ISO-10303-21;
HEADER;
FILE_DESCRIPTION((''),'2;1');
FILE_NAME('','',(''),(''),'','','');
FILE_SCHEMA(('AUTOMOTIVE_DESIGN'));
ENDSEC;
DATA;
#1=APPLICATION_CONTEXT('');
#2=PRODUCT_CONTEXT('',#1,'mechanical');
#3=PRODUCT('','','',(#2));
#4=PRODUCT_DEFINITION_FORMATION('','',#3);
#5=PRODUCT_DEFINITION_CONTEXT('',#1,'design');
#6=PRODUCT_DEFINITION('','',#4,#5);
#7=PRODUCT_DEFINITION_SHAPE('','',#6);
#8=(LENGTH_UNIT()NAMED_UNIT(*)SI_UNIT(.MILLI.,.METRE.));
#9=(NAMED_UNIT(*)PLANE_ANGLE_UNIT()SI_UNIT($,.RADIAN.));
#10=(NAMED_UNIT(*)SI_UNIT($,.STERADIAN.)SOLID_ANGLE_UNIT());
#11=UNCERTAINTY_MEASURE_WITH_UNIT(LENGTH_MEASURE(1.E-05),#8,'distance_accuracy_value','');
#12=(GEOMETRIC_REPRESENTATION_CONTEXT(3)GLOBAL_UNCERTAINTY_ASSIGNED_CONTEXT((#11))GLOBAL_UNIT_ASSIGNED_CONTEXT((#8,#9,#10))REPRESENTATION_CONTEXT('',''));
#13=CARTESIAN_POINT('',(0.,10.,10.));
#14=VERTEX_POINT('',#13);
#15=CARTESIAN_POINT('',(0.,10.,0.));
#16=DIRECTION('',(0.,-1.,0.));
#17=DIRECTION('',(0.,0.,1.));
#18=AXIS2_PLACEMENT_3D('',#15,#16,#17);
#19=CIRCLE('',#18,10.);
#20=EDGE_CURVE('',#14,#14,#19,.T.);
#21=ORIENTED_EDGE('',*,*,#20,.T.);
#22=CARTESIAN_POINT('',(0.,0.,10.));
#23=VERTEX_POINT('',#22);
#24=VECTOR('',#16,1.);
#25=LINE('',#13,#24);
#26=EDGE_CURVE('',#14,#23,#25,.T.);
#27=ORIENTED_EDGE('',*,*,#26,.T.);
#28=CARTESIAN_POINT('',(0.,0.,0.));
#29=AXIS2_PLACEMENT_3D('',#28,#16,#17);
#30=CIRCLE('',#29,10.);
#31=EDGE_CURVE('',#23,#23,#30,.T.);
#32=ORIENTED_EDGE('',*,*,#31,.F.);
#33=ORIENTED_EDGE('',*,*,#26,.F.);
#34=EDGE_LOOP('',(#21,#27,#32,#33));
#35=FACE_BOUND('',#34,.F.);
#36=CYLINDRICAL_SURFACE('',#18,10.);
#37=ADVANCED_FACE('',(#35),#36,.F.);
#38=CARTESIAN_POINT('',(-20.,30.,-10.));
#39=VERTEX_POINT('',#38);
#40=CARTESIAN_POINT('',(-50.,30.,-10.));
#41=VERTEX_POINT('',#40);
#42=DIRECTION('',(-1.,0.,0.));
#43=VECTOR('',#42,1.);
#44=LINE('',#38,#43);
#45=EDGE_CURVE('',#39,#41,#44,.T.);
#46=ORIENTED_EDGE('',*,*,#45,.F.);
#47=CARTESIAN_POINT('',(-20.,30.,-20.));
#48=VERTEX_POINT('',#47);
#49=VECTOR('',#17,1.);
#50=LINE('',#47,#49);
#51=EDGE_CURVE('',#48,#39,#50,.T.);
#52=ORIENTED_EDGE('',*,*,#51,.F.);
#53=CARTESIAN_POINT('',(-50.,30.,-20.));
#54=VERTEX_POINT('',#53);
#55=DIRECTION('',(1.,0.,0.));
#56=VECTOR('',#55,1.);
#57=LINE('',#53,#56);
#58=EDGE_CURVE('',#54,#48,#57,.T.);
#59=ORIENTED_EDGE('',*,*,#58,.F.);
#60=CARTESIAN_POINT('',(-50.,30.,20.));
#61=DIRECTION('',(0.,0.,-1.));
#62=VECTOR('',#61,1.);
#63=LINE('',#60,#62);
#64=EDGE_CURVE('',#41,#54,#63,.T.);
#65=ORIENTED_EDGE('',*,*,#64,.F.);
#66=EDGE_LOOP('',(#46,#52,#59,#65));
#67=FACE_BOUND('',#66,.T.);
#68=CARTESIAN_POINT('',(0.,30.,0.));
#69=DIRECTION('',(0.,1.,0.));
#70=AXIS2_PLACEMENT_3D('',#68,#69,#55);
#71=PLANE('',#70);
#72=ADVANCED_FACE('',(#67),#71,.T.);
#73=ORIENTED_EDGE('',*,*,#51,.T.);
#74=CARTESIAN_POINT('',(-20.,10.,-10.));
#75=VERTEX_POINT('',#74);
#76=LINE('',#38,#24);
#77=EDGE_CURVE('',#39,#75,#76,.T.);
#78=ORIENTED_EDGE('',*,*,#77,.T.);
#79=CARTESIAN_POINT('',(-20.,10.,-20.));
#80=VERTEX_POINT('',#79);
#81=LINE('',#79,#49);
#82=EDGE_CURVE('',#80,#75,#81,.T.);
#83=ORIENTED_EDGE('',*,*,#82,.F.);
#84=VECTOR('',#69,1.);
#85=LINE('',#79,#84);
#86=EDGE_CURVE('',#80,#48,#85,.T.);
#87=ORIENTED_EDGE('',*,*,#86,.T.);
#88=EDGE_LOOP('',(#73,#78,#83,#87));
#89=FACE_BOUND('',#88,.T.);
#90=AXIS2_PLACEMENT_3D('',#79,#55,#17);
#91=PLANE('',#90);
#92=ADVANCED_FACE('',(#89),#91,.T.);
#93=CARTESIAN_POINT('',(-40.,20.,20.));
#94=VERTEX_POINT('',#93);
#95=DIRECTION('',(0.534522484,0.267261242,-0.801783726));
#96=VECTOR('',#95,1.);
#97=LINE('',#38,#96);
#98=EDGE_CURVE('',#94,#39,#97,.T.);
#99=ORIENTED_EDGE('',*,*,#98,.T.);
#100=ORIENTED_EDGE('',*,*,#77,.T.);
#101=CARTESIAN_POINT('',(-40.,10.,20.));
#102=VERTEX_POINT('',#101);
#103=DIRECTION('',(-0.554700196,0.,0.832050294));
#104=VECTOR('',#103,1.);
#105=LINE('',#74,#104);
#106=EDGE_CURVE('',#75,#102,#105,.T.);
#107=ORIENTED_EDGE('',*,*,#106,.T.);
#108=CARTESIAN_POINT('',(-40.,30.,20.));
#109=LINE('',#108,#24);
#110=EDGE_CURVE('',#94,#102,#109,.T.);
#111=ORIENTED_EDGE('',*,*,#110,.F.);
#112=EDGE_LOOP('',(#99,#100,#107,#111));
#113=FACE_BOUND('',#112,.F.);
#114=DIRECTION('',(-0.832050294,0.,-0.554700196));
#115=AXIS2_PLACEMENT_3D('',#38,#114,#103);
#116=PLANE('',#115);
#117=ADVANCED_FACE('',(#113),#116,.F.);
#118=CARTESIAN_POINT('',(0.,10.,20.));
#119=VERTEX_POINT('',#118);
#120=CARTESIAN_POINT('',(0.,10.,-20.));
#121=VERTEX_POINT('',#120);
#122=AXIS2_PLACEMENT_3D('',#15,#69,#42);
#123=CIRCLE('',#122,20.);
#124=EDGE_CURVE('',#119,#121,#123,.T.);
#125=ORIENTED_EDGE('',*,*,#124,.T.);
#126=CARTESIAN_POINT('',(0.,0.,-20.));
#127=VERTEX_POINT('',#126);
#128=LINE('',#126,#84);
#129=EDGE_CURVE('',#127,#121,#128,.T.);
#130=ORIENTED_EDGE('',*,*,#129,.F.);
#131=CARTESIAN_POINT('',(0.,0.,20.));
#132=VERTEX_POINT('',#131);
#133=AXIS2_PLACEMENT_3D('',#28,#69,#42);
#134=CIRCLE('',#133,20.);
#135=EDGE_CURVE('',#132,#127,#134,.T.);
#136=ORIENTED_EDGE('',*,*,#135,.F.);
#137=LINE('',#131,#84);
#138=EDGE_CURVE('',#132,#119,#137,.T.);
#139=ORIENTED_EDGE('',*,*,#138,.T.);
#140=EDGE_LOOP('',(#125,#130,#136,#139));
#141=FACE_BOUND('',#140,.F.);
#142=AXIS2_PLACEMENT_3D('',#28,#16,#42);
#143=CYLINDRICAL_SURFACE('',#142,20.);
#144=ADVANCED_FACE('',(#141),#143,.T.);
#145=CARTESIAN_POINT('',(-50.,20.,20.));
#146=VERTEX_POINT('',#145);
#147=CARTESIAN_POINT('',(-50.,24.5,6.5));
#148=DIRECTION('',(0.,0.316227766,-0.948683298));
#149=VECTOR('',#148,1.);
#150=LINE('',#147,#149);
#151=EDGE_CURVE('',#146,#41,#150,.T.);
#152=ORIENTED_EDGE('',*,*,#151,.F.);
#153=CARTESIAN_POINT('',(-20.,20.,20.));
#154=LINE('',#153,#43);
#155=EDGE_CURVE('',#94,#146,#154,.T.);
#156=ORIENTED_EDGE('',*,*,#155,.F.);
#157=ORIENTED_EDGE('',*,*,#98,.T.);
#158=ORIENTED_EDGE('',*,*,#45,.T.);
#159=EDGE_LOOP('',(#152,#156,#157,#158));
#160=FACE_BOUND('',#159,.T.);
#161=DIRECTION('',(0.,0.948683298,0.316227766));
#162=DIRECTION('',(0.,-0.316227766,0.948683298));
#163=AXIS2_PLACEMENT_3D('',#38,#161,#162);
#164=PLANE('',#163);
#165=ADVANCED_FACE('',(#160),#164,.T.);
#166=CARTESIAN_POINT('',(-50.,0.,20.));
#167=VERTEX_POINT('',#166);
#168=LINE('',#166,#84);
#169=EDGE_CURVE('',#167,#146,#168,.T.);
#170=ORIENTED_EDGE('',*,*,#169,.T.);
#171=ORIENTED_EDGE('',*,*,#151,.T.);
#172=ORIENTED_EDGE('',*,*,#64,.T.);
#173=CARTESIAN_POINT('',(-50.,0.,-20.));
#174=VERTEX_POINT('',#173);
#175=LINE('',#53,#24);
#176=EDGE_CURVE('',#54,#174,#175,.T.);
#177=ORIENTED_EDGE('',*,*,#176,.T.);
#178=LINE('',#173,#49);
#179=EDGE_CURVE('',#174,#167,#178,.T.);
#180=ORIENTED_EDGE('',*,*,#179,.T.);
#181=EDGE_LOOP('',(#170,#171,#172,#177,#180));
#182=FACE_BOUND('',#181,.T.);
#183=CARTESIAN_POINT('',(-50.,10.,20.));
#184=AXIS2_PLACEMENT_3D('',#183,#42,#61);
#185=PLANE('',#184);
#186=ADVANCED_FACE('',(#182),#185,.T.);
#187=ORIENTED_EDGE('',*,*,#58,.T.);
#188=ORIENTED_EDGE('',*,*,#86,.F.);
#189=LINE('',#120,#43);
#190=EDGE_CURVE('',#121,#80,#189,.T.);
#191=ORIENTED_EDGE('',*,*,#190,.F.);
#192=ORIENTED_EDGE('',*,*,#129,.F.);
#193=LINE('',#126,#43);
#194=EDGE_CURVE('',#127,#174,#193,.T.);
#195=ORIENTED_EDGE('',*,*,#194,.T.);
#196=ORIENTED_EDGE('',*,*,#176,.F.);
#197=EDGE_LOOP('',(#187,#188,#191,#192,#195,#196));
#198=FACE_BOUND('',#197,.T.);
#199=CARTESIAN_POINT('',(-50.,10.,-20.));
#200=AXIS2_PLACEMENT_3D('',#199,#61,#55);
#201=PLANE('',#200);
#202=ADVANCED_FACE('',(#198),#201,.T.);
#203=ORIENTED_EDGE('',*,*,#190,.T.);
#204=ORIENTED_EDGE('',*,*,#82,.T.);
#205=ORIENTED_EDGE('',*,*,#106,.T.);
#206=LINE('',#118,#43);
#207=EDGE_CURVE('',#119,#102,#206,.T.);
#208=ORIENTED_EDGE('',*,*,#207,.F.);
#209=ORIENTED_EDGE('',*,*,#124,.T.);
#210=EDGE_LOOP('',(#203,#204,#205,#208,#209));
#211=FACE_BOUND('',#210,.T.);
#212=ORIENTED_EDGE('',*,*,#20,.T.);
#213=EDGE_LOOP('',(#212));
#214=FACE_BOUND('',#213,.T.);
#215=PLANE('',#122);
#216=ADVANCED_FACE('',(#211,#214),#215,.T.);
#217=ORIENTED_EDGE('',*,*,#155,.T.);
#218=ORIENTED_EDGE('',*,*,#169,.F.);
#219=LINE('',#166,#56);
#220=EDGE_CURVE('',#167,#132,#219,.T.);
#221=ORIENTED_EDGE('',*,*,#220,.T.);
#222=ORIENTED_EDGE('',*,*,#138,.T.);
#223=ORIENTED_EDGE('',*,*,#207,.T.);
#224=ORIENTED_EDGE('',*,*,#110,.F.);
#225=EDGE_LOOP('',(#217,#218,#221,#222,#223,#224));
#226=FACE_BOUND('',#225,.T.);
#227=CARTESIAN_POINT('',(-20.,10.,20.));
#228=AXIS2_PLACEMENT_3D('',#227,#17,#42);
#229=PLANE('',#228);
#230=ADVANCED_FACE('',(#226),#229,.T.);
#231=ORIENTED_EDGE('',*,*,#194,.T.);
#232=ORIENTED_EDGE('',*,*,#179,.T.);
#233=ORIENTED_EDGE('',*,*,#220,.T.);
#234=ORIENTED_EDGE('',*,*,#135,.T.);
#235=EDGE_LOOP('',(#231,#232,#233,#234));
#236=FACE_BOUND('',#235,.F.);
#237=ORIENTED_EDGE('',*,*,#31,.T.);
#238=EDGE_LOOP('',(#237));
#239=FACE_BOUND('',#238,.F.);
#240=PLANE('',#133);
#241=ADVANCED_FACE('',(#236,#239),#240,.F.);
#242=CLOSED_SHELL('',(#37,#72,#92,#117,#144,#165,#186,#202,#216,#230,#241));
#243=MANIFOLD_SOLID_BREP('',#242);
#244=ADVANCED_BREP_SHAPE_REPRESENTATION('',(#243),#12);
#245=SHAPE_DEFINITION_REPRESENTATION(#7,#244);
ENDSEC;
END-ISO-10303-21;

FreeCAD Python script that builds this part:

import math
import FreeCAD as App
import Part
import Sketcher
from FreeCAD import Vector
Q = App.Units.Quantity


def add_polygon(sketch, points):
    """Adds a closed chain of lines whose ends are joined by coincident constraints."""
    first, n = sketch.GeometryCount, len(points)
    for a, b in zip(points, points[1:] + points[:1]):
        sketch.addGeometry(Part.LineSegment(App.Vector(*a, 0), App.Vector(*b, 0)), False)
    for i in range(n):
        sketch.addConstraint(Sketcher.Constraint("Coincident", first + i, 2, first + (i + 1) % n, 1))

doc = App.newDocument("Part")
body = doc.addObject("PartDesign::Body", "Body")

# Sketch on XZ plane
sketch1 = body.newObject("Sketcher::SketchObject", "Sketch")
sketch1.AttachmentSupport = (doc.getObject("XZ_Plane"), [""])
sketch1.MapMode = "FlatFace"
sketch1.addGeometry([
    Part.LineSegment(Vector(0, -20, 0), Vector(-50, -20, 0)),
    Part.LineSegment(Vector(-50, -20, 0), Vector(-50, 20, 0)),
    Part.LineSegment(Vector(-50, 20, 0), Vector(0, 20, 0)),
    Part.ArcOfCircle(Part.Circle(Vector(0, 0, 0), Vector(0, 0, 1), 20), math.radians(-90), math.radians(90)),
], False)
sketch1.addConstraint([
    Sketcher.Constraint("Coincident", 0, 2, 1, 1),
    Sketcher.Constraint("Coincident", 1, 2, 2, 1),
    Sketcher.Constraint("Tangent", 2, 2, 3, 2),
    Sketcher.Constraint("Tangent", 3, 1, 0, 1),
    Sketcher.Constraint("Horizontal", 0),
    Sketcher.Constraint("Vertical", 1),
    Sketcher.Constraint("Horizontal", 2),
    Sketcher.Constraint("Coincident", 3, 3, -1, 1),
    Sketcher.Constraint("Radius", 3, Q("0.7874 in")),
    Sketcher.Constraint("DistanceX", 0, 2, 0, 1, Q("1.9685 in")),
])
pad1 = body.newObject("PartDesign::Pad", "Pad")
pad1.Profile = sketch1
pad1.Length = Q("0.3937008 in")
pad1.Reversed = True

# Sketch on XZ plane
sketch2 = body.newObject("Sketcher::SketchObject", "Sketch001")
sketch2.AttachmentSupport = (doc.getObject("XZ_Plane"), [""])
sketch2.MapMode = "FlatFace"
sketch2.AttachmentOffset = App.Placement(Vector(0, 0, -0.3937008 * 25.4), App.Rotation())
add_polygon(sketch2, [(-50, -20), (-50, 20), (-20, 20), (-20, -20)])  # lines 0-3
sketch2.addConstraint([
    Sketcher.Constraint("Vertical", 0),
    Sketcher.Constraint("Horizontal", 1),
    Sketcher.Constraint("Vertical", 2),
    Sketcher.Constraint("Horizontal", 3),
    Sketcher.Constraint("DistanceX", 1, 1, 1, 2, Q("1.1811 in")),
    Sketcher.Constraint("DistanceY", 0, 1, 0, 2, Q("1.5748 in")),
    Sketcher.Constraint("DistanceX", 0, 2, -1, 1, Q("1.9685 in")),
    Sketcher.Constraint("DistanceY", -1, 1, 0, 2, Q("0.7874 in")),
])
pad2 = body.newObject("PartDesign::Pad", "Pad001")
pad2.Profile = sketch2
pad2.Length = Q("0.7874016 in")
pad2.Reversed = True

# Sketch on XZ plane
sketch3 = body.newObject("Sketcher::SketchObject", "Sketch002")
sketch3.AttachmentSupport = (doc.getObject("XZ_Plane"), [""])
sketch3.MapMode = "FlatFace"
sketch3.AttachmentOffset = App.Placement(Vector(0, 0, -1.1811024 * 25.4), App.Rotation())
add_polygon(sketch3, [(-20, -10), (-40, 20), (-20, 20)])  # lines 0-2
sketch3.addConstraint([
    Sketcher.Constraint("Horizontal", 1),
    Sketcher.Constraint("Vertical", 2),
    Sketcher.Constraint("DistanceY", 2, 2, -1, 1, Q("0.3937 in")),
    Sketcher.Constraint("Angle", 0, Q("123.69 deg")),
    Sketcher.Constraint("DistanceX", 1, 1, 1, 2, Q("0.7874 in")),
    Sketcher.Constraint("DistanceX", 0, 2, -1, 1, Q("1.5748 in")),
])
pocket1 = body.newObject("PartDesign::Pocket", "Pocket")
pocket1.Profile = sketch3
pocket1.Length = Q("0.7874016 in")
pocket1.Reversed = True

# Sketch on YZ plane
sketch4 = body.newObject("Sketcher::SketchObject", "Sketch003")
sketch4.AttachmentSupport = (doc.getObject("YZ_Plane"), [""])
sketch4.MapMode = "FlatFace"
sketch4.AttachmentOffset = App.Placement(Vector(0, 0, -0.7874016 * 25.4), App.Rotation())
add_polygon(sketch4, [(20, 20), (30, -10), (30, 20)])  # lines 0-2
sketch4.addConstraint([
    Sketcher.Constraint("Vertical", 1),
    Sketcher.Constraint("Horizontal", 2),
    Sketcher.Constraint("DistanceX", 2, 2, 2, 1, Q("0.3937 in")),
    Sketcher.Constraint("DistanceY", 0, 2, -1, 1, Q("0.3937 in")),
    Sketcher.Constraint("Distance", 0, Q("1.245 in")),
    Sketcher.Constraint("DistanceX", -1, 1, 0, 2, Q("1.1811 in")),
])
pocket2 = body.newObject("PartDesign::Pocket", "Pocket001")
pocket2.Profile = sketch4
pocket2.Length = Q("3.3562992 in")

# Sketch on XZ plane
sketch5 = body.newObject("Sketcher::SketchObject", "Sketch004")
sketch5.AttachmentSupport = (doc.getObject("XZ_Plane"), [""])
sketch5.MapMode = "FlatFace"
sketch5.AttachmentOffset = App.Placement(Vector(0, 0, -0.3937008 * 25.4), App.Rotation())
sketch5.addGeometry(Part.Circle(Vector(0, 0, 0), Vector(0, 0, 1), 10), False)
sketch5.addConstraint([
    Sketcher.Constraint("Coincident", 0, 3, -1, 1),
    Sketcher.Constraint("Diameter", 0, Q("0.7874 in")),
])
doc.recompute()
hole = body.newObject("PartDesign::Hole", "Hole")
hole.Profile = sketch5
hole.ThreadType = "None"
hole.Diameter = Q("0.7874016 in")
hole.DepthType = "ThroughAll"
hole.Reversed = True

doc.recompute()
